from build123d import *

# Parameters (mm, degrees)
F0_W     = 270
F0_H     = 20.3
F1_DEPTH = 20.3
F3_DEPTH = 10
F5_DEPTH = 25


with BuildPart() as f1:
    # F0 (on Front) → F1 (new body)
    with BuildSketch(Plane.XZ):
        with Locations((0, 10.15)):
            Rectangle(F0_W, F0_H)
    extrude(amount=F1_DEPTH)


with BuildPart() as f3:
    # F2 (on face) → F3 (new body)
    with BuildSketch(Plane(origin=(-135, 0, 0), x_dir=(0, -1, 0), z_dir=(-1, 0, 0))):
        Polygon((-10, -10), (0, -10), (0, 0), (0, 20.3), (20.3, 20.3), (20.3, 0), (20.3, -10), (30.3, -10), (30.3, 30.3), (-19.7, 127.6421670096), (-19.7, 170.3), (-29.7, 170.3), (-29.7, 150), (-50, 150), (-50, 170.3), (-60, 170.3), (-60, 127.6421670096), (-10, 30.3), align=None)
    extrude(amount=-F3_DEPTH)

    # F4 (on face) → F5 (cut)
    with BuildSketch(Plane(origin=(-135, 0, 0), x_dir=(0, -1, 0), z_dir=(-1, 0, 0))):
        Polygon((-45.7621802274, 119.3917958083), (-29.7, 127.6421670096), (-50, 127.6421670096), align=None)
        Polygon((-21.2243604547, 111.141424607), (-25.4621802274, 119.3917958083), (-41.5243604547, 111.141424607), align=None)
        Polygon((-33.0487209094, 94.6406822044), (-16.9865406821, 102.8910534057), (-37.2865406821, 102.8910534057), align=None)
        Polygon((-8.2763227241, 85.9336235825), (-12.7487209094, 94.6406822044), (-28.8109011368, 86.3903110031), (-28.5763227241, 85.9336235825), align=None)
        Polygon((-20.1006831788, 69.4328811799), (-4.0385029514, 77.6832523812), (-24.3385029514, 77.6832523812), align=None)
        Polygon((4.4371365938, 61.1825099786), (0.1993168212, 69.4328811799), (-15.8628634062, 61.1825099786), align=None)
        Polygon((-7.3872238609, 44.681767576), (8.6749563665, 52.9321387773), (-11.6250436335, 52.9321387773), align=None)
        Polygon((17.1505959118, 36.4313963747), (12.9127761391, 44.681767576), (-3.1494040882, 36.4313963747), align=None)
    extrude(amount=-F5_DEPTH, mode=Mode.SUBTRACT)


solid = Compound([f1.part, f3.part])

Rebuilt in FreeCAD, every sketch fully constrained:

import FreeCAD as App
import Part
import Sketcher
from FreeCAD import Vector


def add_polygon(sketch, points):
    """Adds a closed chain of lines whose ends are joined by coincident constraints."""
    first, n = sketch.GeometryCount, len(points)
    for a, b in zip(points, points[1:] + points[:1]):
        sketch.addGeometry(Part.LineSegment(App.Vector(*a, 0), App.Vector(*b, 0)), False)
    for i in range(n):
        sketch.addConstraint(Sketcher.Constraint("Coincident", first + i, 2, first + (i + 1) % n, 1))

doc = App.newDocument("Part")
params = doc.addObject("Spreadsheet::Sheet", "Params")
for row, (alias, value) in enumerate([
    ("sketch1_width", "270 mm"),
    ("sketch1_height", "20.3 mm"),
    ("pad1_length", "20.3 mm"),
    ("sketch2_width", "10 mm"),
    ("sketch2_width2", "20.3 mm"),
    ("sketch2_height", "30.3 mm"),
    ("sketch2_height2", "40.3 mm"),
    ("pad2_length", "10 mm"),
    ("sketch3_width", "20.3 mm"),
    ("pocket1_length", "25 mm"),
], start=1):
    params.set(f"A{row}", alias)
    params.set(f"B{row}", "=" + value)
    params.setAlias(f"B{row}", alias)

body = doc.addObject("PartDesign::Body", "Body")

# Sketch on XZ plane
sketch1 = doc.addObject("Sketcher::SketchObject", "Sketch")
body.addObject(sketch1)
sketch1.AttachmentSupport = (doc.XZ_Plane, [""])
sketch1.MapMode = "FlatFace"
add_polygon(sketch1, [(-135, 20), (-135, 0), (135, 0), (135, 20)])  # lines 0-3
sketch1.addConstraint([
    Sketcher.Constraint("Vertical", 0),
    Sketcher.Constraint("Horizontal", 1),
    Sketcher.Constraint("Vertical", 2),
    Sketcher.Constraint("Horizontal", 3),
    Sketcher.Constraint("Symmetric", 0, 2, 1, 2, -1, 1),
    Sketcher.Constraint("DistanceX", 1, 1, 1, 2, 270.0),
    Sketcher.Constraint("DistanceY", 0, 2, 0, 1, 20.3),
])
sketch1.setExpression("Constraints[9]", "Params.sketch1_width")
sketch1.setExpression("Constraints[10]", "Params.sketch1_height")
pad1 = doc.addObject("PartDesign::Pad", "Pad")
body.addObject(pad1)
pad1.Profile = sketch1
pad1.setExpression("Length", "Params.pad1_length")
body2 = doc.addObject("PartDesign::Body", "Body001")

# Sketch on YZ plane
sketch2 = doc.addObject("Sketcher::SketchObject", "Sketch001")
body2.addObject(sketch2)
sketch2.AttachmentSupport = (doc.getObject("YZ_Plane001"), [""])
sketch2.MapMode = "FlatFace"
sketch2.AttachmentOffset = App.Placement(Vector(0, 0, -135), App.Rotation())
add_polygon(sketch2, [(10, -10), (0, -10), (0, 20), (-20, 20), (-20, -10), (-30, -10), (-30, 30), (20, 128), (20, 170), (30, 170), (30, 150), (50, 150), (50, 170), (60, 170), (60, 128), (10, 30)])  # lines 0-15
sketch2.addConstraint([
    Sketcher.Constraint("Horizontal", 0),
    Sketcher.Constraint("Vertical", 1),
    Sketcher.Constraint("Horizontal", 2),
    Sketcher.Constraint("Vertical", 3),
    Sketcher.Constraint("Horizontal", 4),
    Sketcher.Constraint("Vertical", 5),
    Sketcher.Constraint("Vertical", 7),
    Sketcher.Constraint("Horizontal", 8),
    Sketcher.Constraint("Vertical", 9),
    Sketcher.Constraint("Horizontal", 10),
    Sketcher.Constraint("Vertical", 11),
    Sketcher.Constraint("Horizontal", 12),
    Sketcher.Constraint("Vertical", 13),
    Sketcher.Constraint("Vertical", 15),
    Sketcher.Constraint("PointOnObject", 0, 2, -2),
    Sketcher.Constraint("Parallel", 6, 14),
    Sketcher.Constraint("Horizontal", 0, 2, 3, 2),
    Sketcher.Constraint("Horizontal", 8, 2, 11, 2),
    Sketcher.Constraint("Horizontal", 6, 2, 13, 2),
    Sketcher.Constraint("Horizontal", 5, 2, 14, 2),
    Sketcher.Constraint("Equal", 0, 4),
    Sketcher.Constraint("Equal", 4, 8),
    Sketcher.Constraint("Equal", 2, 10),
    Sketcher.Constraint("Equal", 10, 9),
    Sketcher.Constraint("DistanceX", 0, 2, 0, 1, 10.0),
    Sketcher.Constraint("DistanceX", 2, 2, 2, 1, 20.3),
    Sketcher.Constraint("DistanceY", 1, 1, 1, 2, 30.3),
    Sketcher.Constraint("DistanceY", 5, 1, 5, 2, 40.3),
    Sketcher.Constraint("DistanceY", 0, 2, -1, 1, 10.0),
    Sketcher.Constraint("DistanceY", -1, 1, 9, 2, 150.0),
    Sketcher.Constraint("DistanceX", -1, 1, 10, 2, 50.0),
    Sketcher.Constraint("DistanceY", 7, 1, 7, 2, 42.657833),
])
sketch2.setExpression("Constraints[40]", "Params.sketch2_width")
sketch2.setExpression("Constraints[41]", "Params.sketch2_width2")
sketch2.setExpression("Constraints[42]", "Params.sketch2_height")
sketch2.setExpression("Constraints[43]", "Params.sketch2_height2")
pad2 = doc.addObject("PartDesign::Pad", "Pad001")
body2.addObject(pad2)
pad2.Profile = sketch2
pad2.setExpression("Length", "Params.pad2_length")

# Sketch on YZ plane
sketch3 = doc.addObject("Sketcher::SketchObject", "Sketch002")
body2.addObject(sketch3)
sketch3.AttachmentSupport = (doc.getObject("YZ_Plane001"), [""])
sketch3.MapMode = "FlatFace"
sketch3.AttachmentOffset = App.Placement(Vector(0, 0, -135), App.Rotation())
add_polygon(sketch3, [(45.8, 119.4), (29.7, 127.6), (50, 127.6)])  # lines 0-2
add_polygon(sketch3, [(21.2, 111.1), (25.5, 119.4), (41.5, 111.1)])  # lines 3-5
add_polygon(sketch3, [(33, 94.6), (17, 102.9), (37.3, 102.9)])  # lines 6-8
add_polygon(sketch3, [(8.3, 85.9), (12.7, 94.6), (28.8, 86.4), (28.6, 85.9)])  # lines 9-12
add_polygon(sketch3, [(20.1, 69.4), (4, 77.7), (24.3, 77.7)])  # lines 13-15
add_polygon(sketch3, [(-4.4, 61.2), (-0.2, 69.4), (15.9, 61.2)])  # lines 16-18
add_polygon(sketch3, [(7.4, 44.7), (-8.7, 52.9), (11.6, 52.9)])  # lines 19-21
add_polygon(sketch3, [(-17.2, 36.4), (-12.9, 44.7), (3.1, 36.4)])  # lines 22-24
sketch3.addConstraint([
    Sketcher.Constraint("Horizontal", 1),
    Sketcher.Constraint("Horizontal", 5),
    Sketcher.Constraint("Horizontal", 7),
    Sketcher.Constraint("Horizontal", 12),
    Sketcher.Constraint("Horizontal", 14),
    Sketcher.Constraint("Horizontal", 18),
    Sketcher.Constraint("Horizontal", 20),
    Sketcher.Constraint("Horizontal", 24),
    Sketcher.Constraint("Perpendicular", 0, 2),
    Sketcher.Constraint("Parallel", 2, 3),
    Sketcher.Constraint("Perpendicular", 3, 4),
    Sketcher.Constraint("Parallel", 4, 6),
    Sketcher.Constraint("Perpendicular", 6, 8),
    Sketcher.Constraint("Parallel", 8, 9),
    Sketcher.Constraint("Perpendicular", 9, 10),
    Sketcher.Constraint("Perpendicular", 10, 11),
    Sketcher.Constraint("Perpendicular", 11, 13),
    Sketcher.Constraint("Perpendicular", 13, 15),
    Sketcher.Constraint("Parallel", 15, 16),
    Sketcher.Constraint("Perpendicular", 16, 17),
    Sketcher.Constraint("Parallel", 17, 19),
    Sketcher.Constraint("Perpendicular", 19, 21),
    Sketcher.Constraint("Parallel", 21, 22),
    Sketcher.Constraint("Perpendicular", 22, 23),
    Sketcher.Constraint("Horizontal", 2, 2, 3, 2),
    Sketcher.Constraint("Horizontal", 8, 2, 9, 2),
    Sketcher.Constraint("Horizontal", 15, 2, 16, 2),
    Sketcher.Constraint("Horizontal", 21, 2, 22, 2),
    Sketcher.Constraint("Equal", 1, 5),
    Sketcher.Constraint("Equal", 5, 7),
    Sketcher.Constraint("Equal", 7, 12),
    Sketcher.Constraint("Equal", 12, 14),
    Sketcher.Constraint("Equal", 14, 18),
    Sketcher.Constraint("Equal", 18, 20),
    Sketcher.Constraint("Equal", 20, 24),
    Sketcher.Constraint("DistanceX", 1, 1, 1, 2, 20.3),
    Sketcher.Constraint("DistanceX", -1, 1, 1, 2, 50.0),
    Sketcher.Constraint("DistanceX", 3, 2, 2, 2, 20.3),
    Sketcher.Constraint("DistanceX", 9, 2, 8, 2, 20.3),
    Sketcher.Constraint("DistanceX", 16, 2, 15, 2, 20.3),
    Sketcher.Constraint("DistanceX", 22, 2, 21, 2, 20.3),
    Sketcher.Constraint("DistanceX", -1, 1, 10, 2, 28.810901),
    Sketcher.Constraint("DistanceX", 11, 2, 8, 2, 4.472398),
    Sketcher.Constraint("DistanceX", 13, 2, 10, 2, 24.772398),
    Sketcher.Constraint("DistanceY", 13, 2, 6, 2, 25.207801),
    Sketcher.Constraint("Distance", 11, 0.513411),
    Sketcher.Constraint("DistanceY", -1, 1, 10, 2, 86.390311),
    Sketcher.Constraint("DistanceY", -1, 1, 19, 2, 52.932139),
    Sketcher.Constraint("DistanceY", 6, 2, 5, 2, 8.250371),
    Sketcher.Constraint("DistanceX", 19, 2, 18, 2, 4.23782),
])
sketch3.setExpression("Constraints[60]", "Params.sketch3_width")
pocket1 = doc.addObject("PartDesign::Pocket", "Pocket")
body2.addObject(pocket1)
pocket1.Profile = sketch3
pocket1.setExpression("Length", "Params.pocket1_length")
pocket1.Reversed = True

doc.recompute()
